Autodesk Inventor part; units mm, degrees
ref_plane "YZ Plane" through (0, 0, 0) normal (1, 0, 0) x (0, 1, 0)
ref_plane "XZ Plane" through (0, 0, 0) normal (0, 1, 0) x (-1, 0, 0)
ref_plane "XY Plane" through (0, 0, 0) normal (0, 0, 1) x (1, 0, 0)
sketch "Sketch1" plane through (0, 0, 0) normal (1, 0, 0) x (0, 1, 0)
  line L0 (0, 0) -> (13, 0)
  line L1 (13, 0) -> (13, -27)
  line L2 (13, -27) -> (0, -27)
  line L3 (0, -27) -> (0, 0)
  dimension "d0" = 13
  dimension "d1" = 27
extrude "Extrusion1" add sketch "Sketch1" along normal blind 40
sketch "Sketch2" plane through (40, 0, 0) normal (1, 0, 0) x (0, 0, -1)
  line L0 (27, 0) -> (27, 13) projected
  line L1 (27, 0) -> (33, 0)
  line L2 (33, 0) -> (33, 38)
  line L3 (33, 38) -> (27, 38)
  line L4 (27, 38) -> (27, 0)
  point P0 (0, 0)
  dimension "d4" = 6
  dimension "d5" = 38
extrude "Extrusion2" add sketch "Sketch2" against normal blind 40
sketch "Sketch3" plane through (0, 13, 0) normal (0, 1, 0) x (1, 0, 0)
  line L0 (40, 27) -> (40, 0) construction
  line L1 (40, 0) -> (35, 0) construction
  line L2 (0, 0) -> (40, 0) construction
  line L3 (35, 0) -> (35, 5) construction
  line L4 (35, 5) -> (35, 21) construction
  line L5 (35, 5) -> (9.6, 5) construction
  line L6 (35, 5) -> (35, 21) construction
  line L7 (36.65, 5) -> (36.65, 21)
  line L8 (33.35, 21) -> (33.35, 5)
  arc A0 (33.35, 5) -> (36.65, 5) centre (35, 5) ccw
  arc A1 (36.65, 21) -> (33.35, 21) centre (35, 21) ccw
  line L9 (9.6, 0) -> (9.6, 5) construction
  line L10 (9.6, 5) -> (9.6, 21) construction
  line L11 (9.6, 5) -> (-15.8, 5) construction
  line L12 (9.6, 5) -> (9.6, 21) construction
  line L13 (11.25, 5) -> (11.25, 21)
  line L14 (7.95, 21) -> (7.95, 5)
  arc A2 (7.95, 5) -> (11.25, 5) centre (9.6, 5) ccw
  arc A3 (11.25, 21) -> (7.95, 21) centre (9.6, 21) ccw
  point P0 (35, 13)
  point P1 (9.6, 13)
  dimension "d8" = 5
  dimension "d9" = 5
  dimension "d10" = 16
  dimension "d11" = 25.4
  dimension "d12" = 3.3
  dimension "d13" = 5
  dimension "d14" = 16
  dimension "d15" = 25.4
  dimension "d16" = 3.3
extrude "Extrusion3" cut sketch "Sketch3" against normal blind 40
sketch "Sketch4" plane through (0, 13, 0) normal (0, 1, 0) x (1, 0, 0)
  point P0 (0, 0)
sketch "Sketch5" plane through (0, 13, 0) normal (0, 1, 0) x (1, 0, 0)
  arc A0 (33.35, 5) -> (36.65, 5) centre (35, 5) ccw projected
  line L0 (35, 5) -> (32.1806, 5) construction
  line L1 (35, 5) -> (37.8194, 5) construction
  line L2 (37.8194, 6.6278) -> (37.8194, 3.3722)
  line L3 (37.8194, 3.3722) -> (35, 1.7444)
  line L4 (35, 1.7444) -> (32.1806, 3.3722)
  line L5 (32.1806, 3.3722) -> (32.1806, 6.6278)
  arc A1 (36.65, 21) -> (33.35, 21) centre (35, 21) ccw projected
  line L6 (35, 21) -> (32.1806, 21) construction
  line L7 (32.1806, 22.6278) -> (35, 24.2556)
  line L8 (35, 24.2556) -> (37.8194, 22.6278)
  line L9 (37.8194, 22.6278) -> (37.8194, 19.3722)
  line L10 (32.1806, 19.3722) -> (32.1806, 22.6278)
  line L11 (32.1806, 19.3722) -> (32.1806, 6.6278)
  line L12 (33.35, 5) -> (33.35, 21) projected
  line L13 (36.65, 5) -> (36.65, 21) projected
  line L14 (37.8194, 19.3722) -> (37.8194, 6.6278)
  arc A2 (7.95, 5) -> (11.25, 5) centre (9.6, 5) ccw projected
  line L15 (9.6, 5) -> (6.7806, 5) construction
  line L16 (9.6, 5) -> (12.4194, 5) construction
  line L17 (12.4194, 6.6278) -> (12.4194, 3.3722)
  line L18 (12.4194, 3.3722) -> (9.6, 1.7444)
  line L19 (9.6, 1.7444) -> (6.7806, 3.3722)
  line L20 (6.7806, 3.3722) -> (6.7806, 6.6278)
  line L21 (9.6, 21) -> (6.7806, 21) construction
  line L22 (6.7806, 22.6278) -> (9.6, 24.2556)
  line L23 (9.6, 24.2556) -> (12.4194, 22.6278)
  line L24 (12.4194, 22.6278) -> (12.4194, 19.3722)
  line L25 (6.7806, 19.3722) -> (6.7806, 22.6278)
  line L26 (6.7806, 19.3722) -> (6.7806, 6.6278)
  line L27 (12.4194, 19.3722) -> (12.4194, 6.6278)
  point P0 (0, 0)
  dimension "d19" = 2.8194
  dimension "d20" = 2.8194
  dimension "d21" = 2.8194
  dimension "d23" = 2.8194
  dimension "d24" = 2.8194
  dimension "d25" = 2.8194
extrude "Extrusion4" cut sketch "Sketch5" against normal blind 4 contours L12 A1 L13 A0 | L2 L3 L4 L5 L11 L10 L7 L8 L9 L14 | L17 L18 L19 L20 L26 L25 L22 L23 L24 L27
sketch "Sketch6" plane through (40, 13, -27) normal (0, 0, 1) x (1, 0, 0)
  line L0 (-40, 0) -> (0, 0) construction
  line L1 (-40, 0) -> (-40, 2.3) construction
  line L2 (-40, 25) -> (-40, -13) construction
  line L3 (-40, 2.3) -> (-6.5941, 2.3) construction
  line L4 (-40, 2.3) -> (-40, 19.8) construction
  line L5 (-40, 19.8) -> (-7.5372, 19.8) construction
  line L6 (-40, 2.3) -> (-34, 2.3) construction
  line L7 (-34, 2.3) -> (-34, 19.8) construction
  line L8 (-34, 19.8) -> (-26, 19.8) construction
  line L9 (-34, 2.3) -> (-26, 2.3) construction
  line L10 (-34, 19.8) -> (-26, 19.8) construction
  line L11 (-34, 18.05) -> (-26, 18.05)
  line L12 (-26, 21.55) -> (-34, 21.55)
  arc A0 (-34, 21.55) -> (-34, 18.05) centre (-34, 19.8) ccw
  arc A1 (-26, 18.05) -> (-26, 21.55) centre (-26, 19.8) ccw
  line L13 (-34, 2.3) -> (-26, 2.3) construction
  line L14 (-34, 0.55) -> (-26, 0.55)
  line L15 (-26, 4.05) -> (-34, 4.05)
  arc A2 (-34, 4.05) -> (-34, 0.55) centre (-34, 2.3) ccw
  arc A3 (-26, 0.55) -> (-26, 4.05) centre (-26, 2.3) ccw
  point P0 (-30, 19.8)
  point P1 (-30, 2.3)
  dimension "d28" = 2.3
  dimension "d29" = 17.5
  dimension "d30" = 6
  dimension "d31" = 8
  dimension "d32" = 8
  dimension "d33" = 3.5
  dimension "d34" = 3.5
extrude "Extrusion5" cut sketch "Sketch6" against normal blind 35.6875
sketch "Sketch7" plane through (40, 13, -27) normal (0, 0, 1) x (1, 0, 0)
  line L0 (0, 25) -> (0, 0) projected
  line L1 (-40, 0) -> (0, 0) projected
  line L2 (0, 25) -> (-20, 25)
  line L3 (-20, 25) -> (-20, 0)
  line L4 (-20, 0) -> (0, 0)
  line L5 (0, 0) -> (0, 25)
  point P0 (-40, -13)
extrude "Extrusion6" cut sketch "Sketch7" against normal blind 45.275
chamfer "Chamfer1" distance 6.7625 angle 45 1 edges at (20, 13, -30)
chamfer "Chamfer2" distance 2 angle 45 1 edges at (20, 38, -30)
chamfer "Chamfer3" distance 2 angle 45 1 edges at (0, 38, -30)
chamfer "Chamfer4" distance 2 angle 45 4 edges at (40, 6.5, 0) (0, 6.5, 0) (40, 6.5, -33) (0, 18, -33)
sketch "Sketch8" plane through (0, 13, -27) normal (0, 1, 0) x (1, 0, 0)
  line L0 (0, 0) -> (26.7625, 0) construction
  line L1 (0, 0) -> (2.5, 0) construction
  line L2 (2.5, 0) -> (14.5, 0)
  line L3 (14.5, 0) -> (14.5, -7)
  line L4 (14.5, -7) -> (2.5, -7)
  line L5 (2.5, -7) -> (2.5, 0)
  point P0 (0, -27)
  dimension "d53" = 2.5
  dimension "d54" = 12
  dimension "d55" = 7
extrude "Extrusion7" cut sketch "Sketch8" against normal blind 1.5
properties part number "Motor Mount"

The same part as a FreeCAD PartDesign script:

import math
import FreeCAD as App
import Part
import Sketcher
from FreeCAD import Vector
Q = App.Units.Quantity


def edges_at(feature, points):
    """Names of the edges that pass closest to the given points."""
    edges = feature.Shape.Edges
    near = lambda p: min(range(len(edges)), key=lambda i: edges[i].distToShape(Part.Vertex(*p))[0])
    return sorted({f"Edge{near(p) + 1}" for p in points})

doc = App.newDocument("Part")
body = doc.addObject("PartDesign::Body", "Body")

sketch1 = body.newObject("Sketcher::SketchObject", "Sketch")
sketch1.AttachmentSupport = (doc.getObject("YZ_Plane"), [""])
sketch1.MapMode = "FlatFace"
sketch1.addGeometry([
    Part.LineSegment(Vector(13, 0, 0), Vector(0, 0, 0)),
    Part.LineSegment(Vector(0, 0, 0), Vector(0, -27, 0)),
    Part.LineSegment(Vector(0, -27, 0), Vector(13, -27, 0)),
    Part.LineSegment(Vector(13, -27, 0), Vector(13, 0, 0)),
], False)
sketch1.addConstraint([
    Sketcher.Constraint("Coincident", 0, 2, 1, 1),
    Sketcher.Constraint("Coincident", 1, 2, 2, 1),
    Sketcher.Constraint("Coincident", 2, 2, 3, 1),
    Sketcher.Constraint("Coincident", 3, 2, 0, 1),
    Sketcher.Constraint("Horizontal", 0),
    Sketcher.Constraint("Vertical", 1),
    Sketcher.Constraint("Horizontal", 2),
    Sketcher.Constraint("Vertical", 3),
    Sketcher.Constraint("Coincident", 0, 2, -1, 1),
    Sketcher.Constraint("DistanceX", 0, 2, 0, 1, Q("13 mm")),
    Sketcher.Constraint("DistanceY", 1, 2, 1, 1, Q("27 mm")),
])
pad1 = body.newObject("PartDesign::Pad", "Pad")
pad1.Profile = sketch1
pad1.Length = 40

sketch2 = body.newObject("Sketcher::SketchObject", "Sketch001")
sketch2.AttachmentSupport = (doc.getObject("YZ_Plane"), [""])
sketch2.MapMode = "FlatFace"
sketch2.AttachmentOffset = App.Placement(Vector(0, 0, 40), App.Rotation())
sketch2.addGeometry([
    Part.LineSegment(Vector(38, -27, 0), Vector(0, -27, 0)),
    Part.LineSegment(Vector(0, -27, 0), Vector(0, -33, 0)),
    Part.LineSegment(Vector(0, -33, 0), Vector(38, -33, 0)),
    Part.LineSegment(Vector(38, -33, 0), Vector(38, -27, 0)),
], False)
sketch2.addConstraint([
    Sketcher.Constraint("Coincident", 0, 2, 1, 1),
    Sketcher.Constraint("Coincident", 1, 2, 2, 1),
    Sketcher.Constraint("Coincident", 2, 2, 3, 1),
    Sketcher.Constraint("Coincident", 3, 2, 0, 1),
    Sketcher.Constraint("Horizontal", 0),
    Sketcher.Constraint("Vertical", 1),
    Sketcher.Constraint("Horizontal", 2),
    Sketcher.Constraint("Vertical", 3),
    Sketcher.Constraint("PointOnObject", 0, 2, -2),
    Sketcher.Constraint("DistanceX", 0, 2, 0, 1, Q("38 mm")),
    Sketcher.Constraint("DistanceY", 1, 2, 1, 1, Q("6 mm")),
    Sketcher.Constraint("DistanceY", 0, 2, -1, 1, Q("27 mm")),
])
pad2 = body.newObject("PartDesign::Pad", "Pad001")
pad2.Profile = sketch2
pad2.Length = 40
pad2.Reversed = True

sketch3 = body.newObject("Sketcher::SketchObject", "Sketch002")
sketch3.AttachmentSupport = (doc.getObject("XZ_Plane"), [""])
sketch3.MapMode = "FlatFace"
sketch3.AttachmentOffset = App.Placement(Vector(0, 0, -13), App.Rotation())
sketch3.addGeometry([
    Part.ArcOfCircle(Part.Circle(Vector(35, -5, 0), Vector(0, 0, 1), 1.6), math.radians(0), math.radians(180)),
    Part.LineSegment(Vector(36.6, -5, 0), Vector(36.6, -21, 0)),
    Part.ArcOfCircle(Part.Circle(Vector(35, -21, 0), Vector(0, 0, 1), 1.6), math.radians(180), math.radians(360)),
    Part.LineSegment(Vector(33.4, -21, 0), Vector(33.4, -5, 0)),
    Part.ArcOfCircle(Part.Circle(Vector(9.6, -5, 0), Vector(0, 0, 1), 1.6), math.radians(0), math.radians(180)),
    Part.LineSegment(Vector(11.2, -5, 0), Vector(11.2, -21, 0)),
    Part.ArcOfCircle(Part.Circle(Vector(9.6, -21, 0), Vector(0, 0, 1), 1.7), math.radians(180), math.radians(360)),
    Part.LineSegment(Vector(8, -21, 0), Vector(8, -5, 0)),
], False)
sketch3.addConstraint([
    Sketcher.Constraint("Tangent", 0, 1, 1, 1),
    Sketcher.Constraint("Tangent", 1, 2, 2, 2),
    Sketcher.Constraint("Tangent", 2, 1, 3, 1),
    Sketcher.Constraint("Tangent", 3, 2, 0, 2),
    Sketcher.Constraint("Tangent", 4, 1, 5, 1),
    Sketcher.Constraint("Tangent", 5, 2, 6, 2),
    Sketcher.Constraint("Tangent", 6, 1, 7, 1),
    Sketcher.Constraint("Tangent", 7, 2, 4, 2),
    Sketcher.Constraint("Vertical", 1),
    Sketcher.Constraint("Vertical", 3),
    Sketcher.Constraint("Vertical", 5),
    Sketcher.Constraint("Vertical", 7),
    Sketcher.Constraint("Equal", 2, 4),
    Sketcher.Constraint("Horizontal", 0, 3, 4, 3),
    Sketcher.Constraint("Horizontal", 2, 3, 6, 3),
    Sketcher.Constraint("DistanceY", 1, 2, 1, 1, Q("16 mm")),
    Sketcher.Constraint("Radius", 0, Q("1.65 mm")),
    Sketcher.Constraint("DistanceY", 0, 3, -1, 1, Q("5 mm")),
    Sketcher.Constraint("DistanceX", 4, 3, 0, 3, Q("25.4 mm")),
    Sketcher.Constraint("DistanceX", -1, 1, 0, 3, Q("35 mm")),
])
pocket1 = body.newObject("PartDesign::Pocket", "Pocket")
pocket1.Profile = sketch3
pocket1.Length = 40
pocket1.Reversed = True

sketch4 = body.newObject("Sketcher::SketchObject", "Sketch003")
sketch4.AttachmentSupport = (doc.getObject("XZ_Plane"), [""])
sketch4.MapMode = "FlatFace"
sketch4.AttachmentOffset = App.Placement(Vector(0, 0, -13), App.Rotation())
sketch4.addGeometry([
    Part.LineSegment(Vector(37.8, -3.4, 0), Vector(37.8, -22.6, 0)),
    Part.LineSegment(Vector(37.8, -22.6, 0), Vector(35, -24.3, 0)),
    Part.LineSegment(Vector(35, -24.3, 0), Vector(32.2, -22.6, 0)),
    Part.LineSegment(Vector(32.2, -22.6, 0), Vector(32.2, -3.4, 0)),
    Part.LineSegment(Vector(32.2, -3.4, 0), Vector(35, -1.7, 0)),
    Part.LineSegment(Vector(35, -1.7, 0), Vector(37.8, -3.4, 0)),
    Part.LineSegment(Vector(12.4, -3.4, 0), Vector(12.4, -22.6, 0)),
    Part.LineSegment(Vector(12.4, -22.6, 0), Vector(9.6, -24.3, 0)),
    Part.LineSegment(Vector(9.6, -24.3, 0), Vector(6.8, -22.6, 0)),
    Part.LineSegment(Vector(6.8, -22.6, 0), Vector(6.8, -3.4, 0)),
    Part.LineSegment(Vector(6.8, -3.4, 0), Vector(9.6, -1.7, 0)),
    Part.LineSegment(Vector(9.6, -1.7, 0), Vector(12.4, -3.4, 0)),
], False)
sketch4.addConstraint([
    Sketcher.Constraint("Coincident", 0, 2, 1, 1),
    Sketcher.Constraint("Coincident", 1, 2, 2, 1),
    Sketcher.Constraint("Coincident", 2, 2, 3, 1),
    Sketcher.Constraint("Coincident", 3, 2, 4, 1),
    Sketcher.Constraint("Coincident", 4, 2, 5, 1),
    Sketcher.Constraint("Coincident", 5, 2, 0, 1),
    Sketcher.Constraint("Coincident", 6, 2, 7, 1),
    Sketcher.Constraint("Coincident", 7, 2, 8, 1),
    Sketcher.Constraint("Coincident", 8, 2, 9, 1),
    Sketcher.Constraint("Coincident", 9, 2, 10, 1),
    Sketcher.Constraint("Coincident", 10, 2, 11, 1),
    Sketcher.Constraint("Coincident", 11, 2, 6, 1),
    Sketcher.Constraint("Vertical", 0),
    Sketcher.Constraint("Vertical", 3),
    Sketcher.Constraint("Vertical", 6),
    Sketcher.Constraint("Vertical", 9),
    Sketcher.Constraint("Parallel", 1, 4),
    Sketcher.Constraint("Parallel", 2, 5),
    Sketcher.Constraint("Parallel", 4, 7),
    Sketcher.Constraint("Parallel", 5, 8),
    Sketcher.Constraint("Parallel", 7, 10),
    Sketcher.Constraint("Parallel", 8, 11),
    Sketcher.Constraint("Horizontal", 0, 2, 2, 2),
    Sketcher.Constraint("Horizontal", 3, 2, 5, 2),
    Sketcher.Constraint("Horizontal", 2, 2, 6, 2),
    Sketcher.Constraint("Horizontal", 1, 2, 7, 2),
    Sketcher.Constraint("Horizontal", 6, 2, 8, 2),
    Sketcher.Constraint("Horizontal", 5, 2, 9, 2),
    Sketcher.Constraint("Horizontal", 4, 2, 10, 2),
    Sketcher.Constraint("Vertical", 1, 2, 4, 2),
    Sketcher.Constraint("Angle", 1, Q("-149.9997 deg")),
    Sketcher.Constraint("DistanceX", -1, 1, 1, 2, Q("35 mm")),
    Sketcher.Constraint("DistanceX", -1, 1, 7, 2, Q("9.6 mm")),
    Sketcher.Constraint("DistanceX", 1, 2, 0, 2, Q("2.8194 mm")),
    Sketcher.Constraint("DistanceY", 0, 2, 0, 1, Q("19.2556 mm")),
    Sketcher.Constraint("DistanceY", 0, 2, -1, 1, Q("22.6278 mm")),
])
pocket2 = body.newObject("PartDesign::Pocket", "Pocket001")
pocket2.Profile = sketch4
pocket2.Length = 4
pocket2.Reversed = True

sketch5 = body.newObject("Sketcher::SketchObject", "Sketch004")
sketch5.AttachmentSupport = (doc.getObject("XY_Plane"), [""])
sketch5.MapMode = "FlatFace"
sketch5.AttachmentOffset = App.Placement(Vector(0, 0, -27), App.Rotation())
sketch5.addGeometry([
    Part.ArcOfCircle(Part.Circle(Vector(6, 32.8, 0), Vector(0, 0, 1), 1.8), math.radians(90), math.radians(270)),
    Part.LineSegment(Vector(6, 31.1, 0), Vector(14, 31.1, 0)),
    Part.ArcOfCircle(Part.Circle(Vector(14, 32.8, 0), Vector(0, 0, 1), 1.8), math.radians(-90), math.radians(90)),
    Part.LineSegment(Vector(14, 34.5, 0), Vector(6, 34.5, 0)),
    Part.ArcOfCircle(Part.Circle(Vector(6, 15.3, 0), Vector(0, 0, 1), 1.8), math.radians(90), math.radians(270)),
    Part.LineSegment(Vector(6, 13.6, 0), Vector(14, 13.6, 0)),
    Part.ArcOfCircle(Part.Circle(Vector(14, 15.3, 0), Vector(0, 0, 1), 1.7), math.radians(-90), math.radians(90)),
    Part.LineSegment(Vector(14, 17.1, 0), Vector(6, 17.1, 0)),
], False)
sketch5.addConstraint([
    Sketcher.Constraint("Tangent", 0, 2, 1, 1),
    Sketcher.Constraint("Tangent", 1, 2, 2, 1),
    Sketcher.Constraint("Tangent", 2, 2, 3, 1),
    Sketcher.Constraint("Tangent", 3, 2, 0, 1),
    Sketcher.Constraint("Tangent", 4, 2, 5, 1),
    Sketcher.Constraint("Tangent", 5, 2, 6, 1),
    Sketcher.Constraint("Tangent", 6, 2, 7, 1),
    Sketcher.Constraint("Tangent", 7, 2, 4, 1),
    Sketcher.Constraint("Horizontal", 1),
    Sketcher.Constraint("Horizontal", 3),
    Sketcher.Constraint("Horizontal", 5),
    Sketcher.Constraint("Horizontal", 7),
    Sketcher.Constraint("Equal", 2, 4),
    Sketcher.Constraint("Vertical", 0, 3, 4, 3),
    Sketcher.Constraint("Vertical", 2, 3, 6, 3),
    Sketcher.Constraint("DistanceX", 1, 1, 1, 2, Q("8 mm")),
    Sketcher.Constraint("Radius", 0, Q("1.75 mm")),
    Sketcher.Constraint("DistanceX", -1, 1, 0, 3, Q("6 mm")),
    Sketcher.Constraint("DistanceY", 4, 3, 0, 3, Q("17.5 mm")),
    Sketcher.Constraint("DistanceY", -1, 1, 0, 3, Q("32.8 mm")),
])
pocket3 = body.newObject("PartDesign::Pocket", "Pocket002")
pocket3.Profile = sketch5
pocket3.Length = 35.6875

sketch6 = body.newObject("Sketcher::SketchObject", "Sketch005")
sketch6.AttachmentSupport = (doc.getObject("XY_Plane"), [""])
sketch6.MapMode = "FlatFace"
sketch6.AttachmentOffset = App.Placement(Vector(0, 0, -27), App.Rotation())
sketch6.addGeometry([
    Part.LineSegment(Vector(40, 13, 0), Vector(40, 38, 0)),
    Part.LineSegment(Vector(40, 38, 0), Vector(20, 38, 0)),
    Part.LineSegment(Vector(20, 38, 0), Vector(20, 13, 0)),
    Part.LineSegment(Vector(20, 13, 0), Vector(40, 13, 0)),
], False)
sketch6.addConstraint([
    Sketcher.Constraint("Coincident", 0, 2, 1, 1),
    Sketcher.Constraint("Coincident", 1, 2, 2, 1),
    Sketcher.Constraint("Coincident", 2, 2, 3, 1),
    Sketcher.Constraint("Coincident", 3, 2, 0, 1),
    Sketcher.Constraint("Vertical", 0),
    Sketcher.Constraint("Horizontal", 1),
    Sketcher.Constraint("Vertical", 2),
    Sketcher.Constraint("Horizontal", 3),
    Sketcher.Constraint("DistanceX", 1, 2, 1, 1, Q("20 mm")),
    Sketcher.Constraint("DistanceY", 0, 1, 0, 2, Q("25 mm")),
    Sketcher.Constraint("DistanceX", -1, 1, 0, 2, Q("40 mm")),
    Sketcher.Constraint("DistanceY", -1, 1, 0, 2, Q("38 mm")),
])
pocket4 = body.newObject("PartDesign::Pocket", "Pocket003")
pocket4.Profile = sketch6
pocket4.Length = 45.275
doc.recompute()

chamfer = body.newObject("PartDesign::Chamfer", "Chamfer")
chamfer.Base = (pocket4, edges_at(pocket4, [(20, 13, -30)]))
chamfer.Size = 6.7625
doc.recompute()

chamfer2 = body.newObject("PartDesign::Chamfer", "Chamfer001")
chamfer2.Base = (chamfer, edges_at(chamfer, [(20, 38, -30)]))
chamfer2.Size = 2
doc.recompute()

chamfer3 = body.newObject("PartDesign::Chamfer", "Chamfer002")
chamfer3.Base = (chamfer2, edges_at(chamfer2, [(0, 38, -30)]))
chamfer3.Size = 2
doc.recompute()

chamfer4 = body.newObject("PartDesign::Chamfer", "Chamfer003")
chamfer4.Base = (chamfer3, edges_at(chamfer3, [
    (40, 6.5, 0),
    (0, 6.5, 0),
    (40, 6.5, -33),
    (0, 18, -33),
]))
chamfer4.Size = 2

sketch7 = body.newObject("Sketcher::SketchObject", "Sketch006")
sketch7.AttachmentSupport = (doc.getObject("XZ_Plane"), [""])
sketch7.MapMode = "FlatFace"
sketch7.AttachmentOffset = App.Placement(Vector(0, 0, -13), App.Rotation())
sketch7.addGeometry([
    Part.LineSegment(Vector(14, -27, 0), Vector(2, -27, 0)),
    Part.LineSegment(Vector(2, -27, 0), Vector(2, -20, 0)),
    Part.LineSegment(Vector(2, -20, 0), Vector(14, -20, 0)),
    Part.LineSegment(Vector(14, -20, 0), Vector(14, -27, 0)),
], False)
sketch7.addConstraint([
    Sketcher.Constraint("Coincident", 0, 2, 1, 1),
    Sketcher.Constraint("Coincident", 1, 2, 2, 1),
    Sketcher.Constraint("Coincident", 2, 2, 3, 1),
    Sketcher.Constraint("Coincident", 3, 2, 0, 1),
    Sketcher.Constraint("Horizontal", 0),
    Sketcher.Constraint("Vertical", 1),
    Sketcher.Constraint("Horizontal", 2),
    Sketcher.Constraint("Vertical", 3),
    Sketcher.Constraint("DistanceX", 0, 2, 0, 1, Q("12 mm")),
    Sketcher.Constraint("DistanceY", 1, 1, 1, 2, Q("7 mm")),
    Sketcher.Constraint("DistanceX", -1, 1, 0, 2, Q("2.5 mm")),
    Sketcher.Constraint("DistanceY", 0, 2, -1, 1, Q("27 mm")),
])
pocket5 = body.newObject("PartDesign::Pocket", "Pocket004")
pocket5.Profile = sketch7
pocket5.Length = 1.5
pocket5.Reversed = True

doc.recompute()
